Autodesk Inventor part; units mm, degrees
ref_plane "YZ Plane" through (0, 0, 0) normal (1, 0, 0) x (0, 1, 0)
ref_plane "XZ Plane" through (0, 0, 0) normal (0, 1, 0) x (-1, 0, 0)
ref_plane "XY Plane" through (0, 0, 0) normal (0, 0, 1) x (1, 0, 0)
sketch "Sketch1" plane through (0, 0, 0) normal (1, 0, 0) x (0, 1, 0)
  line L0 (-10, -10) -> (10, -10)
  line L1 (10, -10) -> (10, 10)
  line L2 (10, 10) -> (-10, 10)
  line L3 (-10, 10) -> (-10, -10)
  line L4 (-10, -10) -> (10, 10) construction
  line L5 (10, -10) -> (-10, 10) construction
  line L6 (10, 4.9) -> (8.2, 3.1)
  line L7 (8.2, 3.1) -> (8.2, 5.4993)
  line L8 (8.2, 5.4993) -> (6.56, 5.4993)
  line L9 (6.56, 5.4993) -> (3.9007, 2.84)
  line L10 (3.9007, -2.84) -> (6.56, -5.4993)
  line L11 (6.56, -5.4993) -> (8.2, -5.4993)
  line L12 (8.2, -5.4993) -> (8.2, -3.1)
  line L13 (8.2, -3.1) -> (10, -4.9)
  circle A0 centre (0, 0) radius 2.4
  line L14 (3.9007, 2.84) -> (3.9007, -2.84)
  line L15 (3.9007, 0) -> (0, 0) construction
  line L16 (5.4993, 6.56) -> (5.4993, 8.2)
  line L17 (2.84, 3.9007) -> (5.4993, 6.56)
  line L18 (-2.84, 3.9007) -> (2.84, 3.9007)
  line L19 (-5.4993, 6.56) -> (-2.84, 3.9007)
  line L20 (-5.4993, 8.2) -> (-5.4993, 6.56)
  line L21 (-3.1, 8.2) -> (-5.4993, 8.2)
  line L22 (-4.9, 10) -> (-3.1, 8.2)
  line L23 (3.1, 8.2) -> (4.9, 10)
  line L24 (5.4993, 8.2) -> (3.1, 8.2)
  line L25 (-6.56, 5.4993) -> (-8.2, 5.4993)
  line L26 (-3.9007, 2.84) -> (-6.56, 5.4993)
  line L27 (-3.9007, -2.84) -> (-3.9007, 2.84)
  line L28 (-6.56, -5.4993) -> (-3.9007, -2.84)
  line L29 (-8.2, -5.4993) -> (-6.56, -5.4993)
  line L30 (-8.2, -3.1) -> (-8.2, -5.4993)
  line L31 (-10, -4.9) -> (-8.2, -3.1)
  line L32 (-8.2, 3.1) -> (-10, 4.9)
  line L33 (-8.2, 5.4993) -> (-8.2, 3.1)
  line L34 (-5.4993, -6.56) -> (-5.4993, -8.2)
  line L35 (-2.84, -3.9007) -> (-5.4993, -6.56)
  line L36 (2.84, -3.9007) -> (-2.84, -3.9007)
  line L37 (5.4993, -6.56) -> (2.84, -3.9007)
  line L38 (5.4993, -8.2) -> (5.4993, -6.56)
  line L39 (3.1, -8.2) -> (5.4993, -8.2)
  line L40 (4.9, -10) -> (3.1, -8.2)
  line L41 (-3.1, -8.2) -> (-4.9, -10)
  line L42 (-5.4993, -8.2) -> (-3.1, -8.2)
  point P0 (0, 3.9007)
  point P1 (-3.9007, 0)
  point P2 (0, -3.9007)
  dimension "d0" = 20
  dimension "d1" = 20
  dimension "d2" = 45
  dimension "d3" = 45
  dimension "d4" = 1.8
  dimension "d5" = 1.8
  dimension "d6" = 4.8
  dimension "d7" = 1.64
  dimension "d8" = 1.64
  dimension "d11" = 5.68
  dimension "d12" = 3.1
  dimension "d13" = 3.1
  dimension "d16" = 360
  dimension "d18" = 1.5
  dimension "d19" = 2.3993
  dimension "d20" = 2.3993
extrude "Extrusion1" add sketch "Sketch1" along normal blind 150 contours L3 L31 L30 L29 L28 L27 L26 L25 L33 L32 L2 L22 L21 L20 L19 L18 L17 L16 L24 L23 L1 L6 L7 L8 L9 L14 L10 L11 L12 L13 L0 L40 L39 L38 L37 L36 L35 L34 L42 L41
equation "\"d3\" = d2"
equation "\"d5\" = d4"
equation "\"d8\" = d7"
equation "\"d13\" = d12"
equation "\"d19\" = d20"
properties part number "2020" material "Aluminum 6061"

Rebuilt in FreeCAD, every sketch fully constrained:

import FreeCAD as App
import Part
import Sketcher

V = App.Vector

doc = App.newDocument("Part")
body = doc.addObject("PartDesign::Body", "Body")

# Sketch on YZ plane
sketch1 = body.newObject("Sketcher::SketchObject", "Sketch")
sketch1.AttachmentSupport = (doc.getObject("YZ_Plane"), [""])
sketch1.MapMode = "FlatFace"
sketch1.addGeometry(Part.LineSegment(V(-10, -4.9, 0), V(-10, -10, 0)), False)
sketch1.addGeometry(Part.LineSegment(V(-10, -10, 0), V(-4.9, -10, 0)), False)
sketch1.addGeometry(Part.LineSegment(V(-4.9, -10, 0), V(-3.1, -8.2, 0)), False)
sketch1.addGeometry(Part.LineSegment(V(-3.1, -8.2, 0), V(-5.4993, -8.2, 0)), False)
sketch1.addGeometry(Part.LineSegment(V(-5.4993, -8.2, 0), V(-5.4993, -6.56, 0)), False)
sketch1.addGeometry(Part.LineSegment(V(-5.4993, -6.56, 0), V(-2.84, -3.9007, 0)), False)
sketch1.addGeometry(Part.LineSegment(V(-2.84, -3.9007, 0), V(2.84, -3.9007, 0)), False)
sketch1.addGeometry(Part.LineSegment(V(2.84, -3.9007, 0), V(5.4993, -6.56, 0)), False)
sketch1.addGeometry(Part.LineSegment(V(5.4993, -6.56, 0), V(5.4993, -8.2, 0)), False)
sketch1.addGeometry(Part.LineSegment(V(5.4993, -8.2, 0), V(3.1, -8.2, 0)), False)
sketch1.addGeometry(Part.LineSegment(V(3.1, -8.2, 0), V(4.9, -10, 0)), False)
sketch1.addGeometry(Part.LineSegment(V(4.9, -10, 0), V(10, -10, 0)), False)
sketch1.addGeometry(Part.LineSegment(V(10, -10, 0), V(10, -4.9, 0)), False)
sketch1.addGeometry(Part.LineSegment(V(10, -4.9, 0), V(8.2, -3.1, 0)), False)
sketch1.addGeometry(Part.LineSegment(V(8.2, -3.1, 0), V(8.2, -5.4993, 0)), False)
sketch1.addGeometry(Part.LineSegment(V(8.2, -5.4993, 0), V(6.56, -5.4993, 0)), False)
sketch1.addGeometry(Part.LineSegment(V(6.56, -5.4993, 0), V(3.9007, -2.84, 0)), False)
sketch1.addGeometry(Part.LineSegment(V(3.9007, -2.84, 0), V(3.9007, 2.84, 0)), False)
sketch1.addGeometry(Part.LineSegment(V(3.9007, 2.84, 0), V(6.56, 5.4993, 0)), False)
sketch1.addGeometry(Part.LineSegment(V(6.56, 5.4993, 0), V(8.2, 5.4993, 0)), False)
sketch1.addGeometry(Part.LineSegment(V(8.2, 5.4993, 0), V(8.2, 3.1, 0)), False)
sketch1.addGeometry(Part.LineSegment(V(8.2, 3.1, 0), V(10, 4.9, 0)), False)
sketch1.addGeometry(Part.LineSegment(V(10, 4.9, 0), V(10, 10, 0)), False)
sketch1.addGeometry(Part.LineSegment(V(10, 10, 0), V(4.9, 10, 0)), False)
sketch1.addGeometry(Part.LineSegment(V(4.9, 10, 0), V(3.1, 8.2, 0)), False)
sketch1.addGeometry(Part.LineSegment(V(3.1, 8.2, 0), V(5.4993, 8.2, 0)), False)
sketch1.addGeometry(Part.LineSegment(V(5.4993, 8.2, 0), V(5.4993, 6.56, 0)), False)
sketch1.addGeometry(Part.LineSegment(V(5.4993, 6.56, 0), V(2.84, 3.9007, 0)), False)
sketch1.addGeometry(Part.LineSegment(V(2.84, 3.9007, 0), V(-2.84, 3.9007, 0)), False)
sketch1.addGeometry(Part.LineSegment(V(-2.84, 3.9007, 0), V(-5.4993, 6.56, 0)), False)
sketch1.addGeometry(Part.LineSegment(V(-5.4993, 6.56, 0), V(-5.4993, 8.2, 0)), False)
sketch1.addGeometry(Part.LineSegment(V(-5.4993, 8.2, 0), V(-3.1, 8.2, 0)), False)
sketch1.addGeometry(Part.LineSegment(V(-3.1, 8.2, 0), V(-4.9, 10, 0)), False)
sketch1.addGeometry(Part.LineSegment(V(-4.9, 10, 0), V(-10, 10, 0)), False)
sketch1.addGeometry(Part.LineSegment(V(-10, 10, 0), V(-10, 4.9, 0)), False)
sketch1.addGeometry(Part.LineSegment(V(-10, 4.9, 0), V(-8.2, 3.1, 0)), False)
sketch1.addGeometry(Part.LineSegment(V(-8.2, 3.1, 0), V(-8.2, 5.4993, 0)), False)
sketch1.addGeometry(Part.LineSegment(V(-8.2, 5.4993, 0), V(-6.56, 5.4993, 0)), False)
sketch1.addGeometry(Part.LineSegment(V(-6.56, 5.4993, 0), V(-3.9007, 2.84, 0)), False)
sketch1.addGeometry(Part.LineSegment(V(-3.9007, 2.84, 0), V(-3.9007, -2.84, 0)), False)
sketch1.addGeometry(Part.LineSegment(V(-3.9007, -2.84, 0), V(-6.56, -5.4993, 0)), False)
sketch1.addGeometry(Part.LineSegment(V(-6.56, -5.4993, 0), V(-8.2, -5.4993, 0)), False)
sketch1.addGeometry(Part.LineSegment(V(-8.2, -5.4993, 0), V(-8.2, -3.1, 0)), False)
sketch1.addGeometry(Part.LineSegment(V(-8.2, -3.1, 0), V(-10, -4.9, 0)), False)
sketch1.addGeometry(Part.Circle(V(0, 0, 0), V(0, 0, 1), 2.4), False)
sketch1.addConstraint(Sketcher.Constraint("Coincident", 0, 2, 1, 1))
sketch1.addConstraint(Sketcher.Constraint("Coincident", 1, 2, 2, 1))
sketch1.addConstraint(Sketcher.Constraint("Coincident", 2, 2, 3, 1))
sketch1.addConstraint(Sketcher.Constraint("Coincident", 3, 2, 4, 1))
sketch1.addConstraint(Sketcher.Constraint("Coincident", 4, 2, 5, 1))
sketch1.addConstraint(Sketcher.Constraint("Coincident", 5, 2, 6, 1))
sketch1.addConstraint(Sketcher.Constraint("Coincident", 6, 2, 7, 1))
sketch1.addConstraint(Sketcher.Constraint("Coincident", 7, 2, 8, 1))
sketch1.addConstraint(Sketcher.Constraint("Coincident", 8, 2, 9, 1))
sketch1.addConstraint(Sketcher.Constraint("Coincident", 9, 2, 10, 1))
sketch1.addConstraint(Sketcher.Constraint("Coincident", 10, 2, 11, 1))
sketch1.addConstraint(Sketcher.Constraint("Coincident", 11, 2, 12, 1))
sketch1.addConstraint(Sketcher.Constraint("Coincident", 12, 2, 13, 1))
sketch1.addConstraint(Sketcher.Constraint("Coincident", 13, 2, 14, 1))
sketch1.addConstraint(Sketcher.Constraint("Coincident", 14, 2, 15, 1))
sketch1.addConstraint(Sketcher.Constraint("Coincident", 15, 2, 16, 1))
sketch1.addConstraint(Sketcher.Constraint("Coincident", 16, 2, 17, 1))
sketch1.addConstraint(Sketcher.Constraint("Coincident", 17, 2, 18, 1))
sketch1.addConstraint(Sketcher.Constraint("Coincident", 18, 2, 19, 1))
sketch1.addConstraint(Sketcher.Constraint("Coincident", 19, 2, 20, 1))
sketch1.addConstraint(Sketcher.Constraint("Coincident", 20, 2, 21, 1))
sketch1.addConstraint(Sketcher.Constraint("Coincident", 21, 2, 22, 1))
sketch1.addConstraint(Sketcher.Constraint("Coincident", 22, 2, 23, 1))
sketch1.addConstraint(Sketcher.Constraint("Coincident", 23, 2, 24, 1))
sketch1.addConstraint(Sketcher.Constraint("Coincident", 24, 2, 25, 1))
sketch1.addConstraint(Sketcher.Constraint("Coincident", 25, 2, 26, 1))
sketch1.addConstraint(Sketcher.Constraint("Coincident", 26, 2, 27, 1))
sketch1.addConstraint(Sketcher.Constraint("Coincident", 27, 2, 28, 1))
sketch1.addConstraint(Sketcher.Constraint("Coincident", 28, 2, 29, 1))
sketch1.addConstraint(Sketcher.Constraint("Coincident", 29, 2, 30, 1))
sketch1.addConstraint(Sketcher.Constraint("Coincident", 30, 2, 31, 1))
sketch1.addConstraint(Sketcher.Constraint("Coincident", 31, 2, 32, 1))
sketch1.addConstraint(Sketcher.Constraint("Coincident", 32, 2, 33, 1))
sketch1.addConstraint(Sketcher.Constraint("Coincident", 33, 2, 34, 1))
sketch1.addConstraint(Sketcher.Constraint("Coincident", 34, 2, 35, 1))
sketch1.addConstraint(Sketcher.Constraint("Coincident", 35, 2, 36, 1))
sketch1.addConstraint(Sketcher.Constraint("Coincident", 36, 2, 37, 1))
sketch1.addConstraint(Sketcher.Constraint("Coincident", 37, 2, 38, 1))
sketch1.addConstraint(Sketcher.Constraint("Coincident", 38, 2, 39, 1))
sketch1.addConstraint(Sketcher.Constraint("Coincident", 39, 2, 40, 1))
sketch1.addConstraint(Sketcher.Constraint("Coincident", 40, 2, 41, 1))
sketch1.addConstraint(Sketcher.Constraint("Coincident", 41, 2, 42, 1))
sketch1.addConstraint(Sketcher.Constraint("Coincident", 42, 2, 43, 1))
sketch1.addConstraint(Sketcher.Constraint("Coincident", 43, 2, 0, 1))
sketch1.addConstraint(Sketcher.Constraint("Vertical", 0))
sketch1.addConstraint(Sketcher.Constraint("Horizontal", 1))
sketch1.addConstraint(Sketcher.Constraint("Horizontal", 3))
sketch1.addConstraint(Sketcher.Constraint("Vertical", 4))
sketch1.addConstraint(Sketcher.Constraint("Horizontal", 6))
sketch1.addConstraint(Sketcher.Constraint("Vertical", 8))
sketch1.addConstraint(Sketcher.Constraint("Horizontal", 9))
sketch1.addConstraint(Sketcher.Constraint("Horizontal", 11))
sketch1.addConstraint(Sketcher.Constraint("Vertical", 12))
sketch1.addConstraint(Sketcher.Constraint("Vertical", 14))
sketch1.addConstraint(Sketcher.Constraint("Horizontal", 15))
sketch1.addConstraint(Sketcher.Constraint("Vertical", 17))
sketch1.addConstraint(Sketcher.Constraint("Horizontal", 19))
sketch1.addConstraint(Sketcher.Constraint("Vertical", 20))
sketch1.addConstraint(Sketcher.Constraint("Vertical", 22))
sketch1.addConstraint(Sketcher.Constraint("Horizontal", 23))
sketch1.addConstraint(Sketcher.Constraint("Horizontal", 25))
sketch1.addConstraint(Sketcher.Constraint("Vertical", 26))
sketch1.addConstraint(Sketcher.Constraint("Horizontal", 28))
sketch1.addConstraint(Sketcher.Constraint("Vertical", 30))
sketch1.addConstraint(Sketcher.Constraint("Horizontal", 31))
sketch1.addConstraint(Sketcher.Constraint("Horizontal", 33))
sketch1.addConstraint(Sketcher.Constraint("Vertical", 34))
sketch1.addConstraint(Sketcher.Constraint("Vertical", 36))
sketch1.addConstraint(Sketcher.Constraint("Horizontal", 37))
sketch1.addConstraint(Sketcher.Constraint("Vertical", 39))
sketch1.addConstraint(Sketcher.Constraint("Horizontal", 41))
sketch1.addConstraint(Sketcher.Constraint("Vertical", 42))
sketch1.addConstraint(Sketcher.Constraint("Coincident", 44, 3, -1, 1))
sketch1.addConstraint(Sketcher.Constraint("Symmetric", 0, 2, 22, 2, -1, 1))
sketch1.addConstraint(Sketcher.Constraint("Symmetric", 2, 2, 24, 2, -1, 1))
sketch1.addConstraint(Sketcher.Constraint("Symmetric", 4, 2, 26, 2, -1, 1))
sketch1.addConstraint(Sketcher.Constraint("Symmetric", 5, 2, 27, 2, -1, 1))
sketch1.addConstraint(Sketcher.Constraint("Symmetric", 7, 2, 29, 2, -1, 1))
sketch1.addConstraint(Sketcher.Constraint("Symmetric", 9, 2, 31, 2, -1, 1))
sketch1.addConstraint(Sketcher.Constraint("Symmetric", 10, 2, 32, 2, -1, 1))
sketch1.addConstraint(Sketcher.Constraint("Symmetric", 12, 2, 34, 2, -1, 1))
sketch1.addConstraint(Sketcher.Constraint("Symmetric", 13, 2, 35, 2, -1, 1))
sketch1.addConstraint(Sketcher.Constraint("Symmetric", 15, 2, 37, 2, -1, 1))
sketch1.addConstraint(Sketcher.Constraint("Symmetric", 16, 2, 38, 2, -1, 1))
sketch1.addConstraint(Sketcher.Constraint("Symmetric", 18, 2, 40, 2, -1, 1))
sketch1.addConstraint(Sketcher.Constraint("Symmetric", 20, 2, 42, 2, -1, 1))
sketch1.addConstraint(Sketcher.Constraint("Symmetric", 4, 2, 7, 2, -2))
sketch1.addConstraint(Sketcher.Constraint("Symmetric", 2, 2, 9, 2, -2))
sketch1.addConstraint(Sketcher.Constraint("Symmetric", 1, 2, 10, 2, -2))
sketch1.addConstraint(Sketcher.Constraint("Symmetric", 21, 2, 34, 2, -2))
sketch1.addConstraint(Sketcher.Constraint("Symmetric", 20, 2, 35, 2, -2))
sketch1.addConstraint(Sketcher.Constraint("Symmetric", 18, 2, 37, 2, -2))
sketch1.addConstraint(Sketcher.Constraint("Parallel", 2, 5))
sketch1.addConstraint(Sketcher.Constraint("Perpendicular", 5, 7))
sketch1.addConstraint(Sketcher.Constraint("Parallel", 7, 10))
sketch1.addConstraint(Sketcher.Constraint("Parallel", 10, 13))
sketch1.addConstraint(Sketcher.Constraint("Parallel", 13, 16))
sketch1.addConstraint(Sketcher.Constraint("Perpendicular", 16, 18))
sketch1.addConstraint(Sketcher.Constraint("Parallel", 21, 24))
sketch1.addConstraint(Sketcher.Constraint("Perpendicular", 27, 29))
sketch1.addConstraint(Sketcher.Constraint("Perpendicular", 38, 40))
sketch1.addConstraint(Sketcher.Constraint("Parallel", 40, 43))
sketch1.addConstraint(Sketcher.Constraint("Equal", 33, 0))
sketch1.addConstraint(Sketcher.Constraint("Equal", 41, 4))
sketch1.addConstraint(Sketcher.Constraint("Equal", 31, 14))
sketch1.addConstraint(Sketcher.Constraint("Equal", 28, 17))
sketch1.addConstraint(Sketcher.Constraint("Equal", 10, 13))
sketch1.addConstraint(Sketcher.Constraint("Equal", 7, 16))
sketch1.addConstraint(Sketcher.Constraint("Diameter", 44, 4.8))
sketch1.addConstraint(Sketcher.Constraint("DistanceX", 6, 1, 6, 2, 5.68))
sketch1.addConstraint(Sketcher.Constraint("DistanceX", 15, 2, 15, 1, 1.64))
sketch1.addConstraint(Sketcher.Constraint("DistanceX", 2, 2, -1, 1, 3.1))
sketch1.addConstraint(Sketcher.Constraint("DistanceX", 1, 2, 2, 2, 1.8))
sketch1.addConstraint(Sketcher.Constraint("DistanceX", 1, 1, 1, 2, 5.1))
sketch1.addConstraint(Sketcher.Constraint("DistanceX", 3, 2, 3, 1, 2.3993))
pad1 = body.newObject("PartDesign::Pad", "Pad")
pad1.Profile = sketch1
pad1.Length = 150

doc.recompute()
